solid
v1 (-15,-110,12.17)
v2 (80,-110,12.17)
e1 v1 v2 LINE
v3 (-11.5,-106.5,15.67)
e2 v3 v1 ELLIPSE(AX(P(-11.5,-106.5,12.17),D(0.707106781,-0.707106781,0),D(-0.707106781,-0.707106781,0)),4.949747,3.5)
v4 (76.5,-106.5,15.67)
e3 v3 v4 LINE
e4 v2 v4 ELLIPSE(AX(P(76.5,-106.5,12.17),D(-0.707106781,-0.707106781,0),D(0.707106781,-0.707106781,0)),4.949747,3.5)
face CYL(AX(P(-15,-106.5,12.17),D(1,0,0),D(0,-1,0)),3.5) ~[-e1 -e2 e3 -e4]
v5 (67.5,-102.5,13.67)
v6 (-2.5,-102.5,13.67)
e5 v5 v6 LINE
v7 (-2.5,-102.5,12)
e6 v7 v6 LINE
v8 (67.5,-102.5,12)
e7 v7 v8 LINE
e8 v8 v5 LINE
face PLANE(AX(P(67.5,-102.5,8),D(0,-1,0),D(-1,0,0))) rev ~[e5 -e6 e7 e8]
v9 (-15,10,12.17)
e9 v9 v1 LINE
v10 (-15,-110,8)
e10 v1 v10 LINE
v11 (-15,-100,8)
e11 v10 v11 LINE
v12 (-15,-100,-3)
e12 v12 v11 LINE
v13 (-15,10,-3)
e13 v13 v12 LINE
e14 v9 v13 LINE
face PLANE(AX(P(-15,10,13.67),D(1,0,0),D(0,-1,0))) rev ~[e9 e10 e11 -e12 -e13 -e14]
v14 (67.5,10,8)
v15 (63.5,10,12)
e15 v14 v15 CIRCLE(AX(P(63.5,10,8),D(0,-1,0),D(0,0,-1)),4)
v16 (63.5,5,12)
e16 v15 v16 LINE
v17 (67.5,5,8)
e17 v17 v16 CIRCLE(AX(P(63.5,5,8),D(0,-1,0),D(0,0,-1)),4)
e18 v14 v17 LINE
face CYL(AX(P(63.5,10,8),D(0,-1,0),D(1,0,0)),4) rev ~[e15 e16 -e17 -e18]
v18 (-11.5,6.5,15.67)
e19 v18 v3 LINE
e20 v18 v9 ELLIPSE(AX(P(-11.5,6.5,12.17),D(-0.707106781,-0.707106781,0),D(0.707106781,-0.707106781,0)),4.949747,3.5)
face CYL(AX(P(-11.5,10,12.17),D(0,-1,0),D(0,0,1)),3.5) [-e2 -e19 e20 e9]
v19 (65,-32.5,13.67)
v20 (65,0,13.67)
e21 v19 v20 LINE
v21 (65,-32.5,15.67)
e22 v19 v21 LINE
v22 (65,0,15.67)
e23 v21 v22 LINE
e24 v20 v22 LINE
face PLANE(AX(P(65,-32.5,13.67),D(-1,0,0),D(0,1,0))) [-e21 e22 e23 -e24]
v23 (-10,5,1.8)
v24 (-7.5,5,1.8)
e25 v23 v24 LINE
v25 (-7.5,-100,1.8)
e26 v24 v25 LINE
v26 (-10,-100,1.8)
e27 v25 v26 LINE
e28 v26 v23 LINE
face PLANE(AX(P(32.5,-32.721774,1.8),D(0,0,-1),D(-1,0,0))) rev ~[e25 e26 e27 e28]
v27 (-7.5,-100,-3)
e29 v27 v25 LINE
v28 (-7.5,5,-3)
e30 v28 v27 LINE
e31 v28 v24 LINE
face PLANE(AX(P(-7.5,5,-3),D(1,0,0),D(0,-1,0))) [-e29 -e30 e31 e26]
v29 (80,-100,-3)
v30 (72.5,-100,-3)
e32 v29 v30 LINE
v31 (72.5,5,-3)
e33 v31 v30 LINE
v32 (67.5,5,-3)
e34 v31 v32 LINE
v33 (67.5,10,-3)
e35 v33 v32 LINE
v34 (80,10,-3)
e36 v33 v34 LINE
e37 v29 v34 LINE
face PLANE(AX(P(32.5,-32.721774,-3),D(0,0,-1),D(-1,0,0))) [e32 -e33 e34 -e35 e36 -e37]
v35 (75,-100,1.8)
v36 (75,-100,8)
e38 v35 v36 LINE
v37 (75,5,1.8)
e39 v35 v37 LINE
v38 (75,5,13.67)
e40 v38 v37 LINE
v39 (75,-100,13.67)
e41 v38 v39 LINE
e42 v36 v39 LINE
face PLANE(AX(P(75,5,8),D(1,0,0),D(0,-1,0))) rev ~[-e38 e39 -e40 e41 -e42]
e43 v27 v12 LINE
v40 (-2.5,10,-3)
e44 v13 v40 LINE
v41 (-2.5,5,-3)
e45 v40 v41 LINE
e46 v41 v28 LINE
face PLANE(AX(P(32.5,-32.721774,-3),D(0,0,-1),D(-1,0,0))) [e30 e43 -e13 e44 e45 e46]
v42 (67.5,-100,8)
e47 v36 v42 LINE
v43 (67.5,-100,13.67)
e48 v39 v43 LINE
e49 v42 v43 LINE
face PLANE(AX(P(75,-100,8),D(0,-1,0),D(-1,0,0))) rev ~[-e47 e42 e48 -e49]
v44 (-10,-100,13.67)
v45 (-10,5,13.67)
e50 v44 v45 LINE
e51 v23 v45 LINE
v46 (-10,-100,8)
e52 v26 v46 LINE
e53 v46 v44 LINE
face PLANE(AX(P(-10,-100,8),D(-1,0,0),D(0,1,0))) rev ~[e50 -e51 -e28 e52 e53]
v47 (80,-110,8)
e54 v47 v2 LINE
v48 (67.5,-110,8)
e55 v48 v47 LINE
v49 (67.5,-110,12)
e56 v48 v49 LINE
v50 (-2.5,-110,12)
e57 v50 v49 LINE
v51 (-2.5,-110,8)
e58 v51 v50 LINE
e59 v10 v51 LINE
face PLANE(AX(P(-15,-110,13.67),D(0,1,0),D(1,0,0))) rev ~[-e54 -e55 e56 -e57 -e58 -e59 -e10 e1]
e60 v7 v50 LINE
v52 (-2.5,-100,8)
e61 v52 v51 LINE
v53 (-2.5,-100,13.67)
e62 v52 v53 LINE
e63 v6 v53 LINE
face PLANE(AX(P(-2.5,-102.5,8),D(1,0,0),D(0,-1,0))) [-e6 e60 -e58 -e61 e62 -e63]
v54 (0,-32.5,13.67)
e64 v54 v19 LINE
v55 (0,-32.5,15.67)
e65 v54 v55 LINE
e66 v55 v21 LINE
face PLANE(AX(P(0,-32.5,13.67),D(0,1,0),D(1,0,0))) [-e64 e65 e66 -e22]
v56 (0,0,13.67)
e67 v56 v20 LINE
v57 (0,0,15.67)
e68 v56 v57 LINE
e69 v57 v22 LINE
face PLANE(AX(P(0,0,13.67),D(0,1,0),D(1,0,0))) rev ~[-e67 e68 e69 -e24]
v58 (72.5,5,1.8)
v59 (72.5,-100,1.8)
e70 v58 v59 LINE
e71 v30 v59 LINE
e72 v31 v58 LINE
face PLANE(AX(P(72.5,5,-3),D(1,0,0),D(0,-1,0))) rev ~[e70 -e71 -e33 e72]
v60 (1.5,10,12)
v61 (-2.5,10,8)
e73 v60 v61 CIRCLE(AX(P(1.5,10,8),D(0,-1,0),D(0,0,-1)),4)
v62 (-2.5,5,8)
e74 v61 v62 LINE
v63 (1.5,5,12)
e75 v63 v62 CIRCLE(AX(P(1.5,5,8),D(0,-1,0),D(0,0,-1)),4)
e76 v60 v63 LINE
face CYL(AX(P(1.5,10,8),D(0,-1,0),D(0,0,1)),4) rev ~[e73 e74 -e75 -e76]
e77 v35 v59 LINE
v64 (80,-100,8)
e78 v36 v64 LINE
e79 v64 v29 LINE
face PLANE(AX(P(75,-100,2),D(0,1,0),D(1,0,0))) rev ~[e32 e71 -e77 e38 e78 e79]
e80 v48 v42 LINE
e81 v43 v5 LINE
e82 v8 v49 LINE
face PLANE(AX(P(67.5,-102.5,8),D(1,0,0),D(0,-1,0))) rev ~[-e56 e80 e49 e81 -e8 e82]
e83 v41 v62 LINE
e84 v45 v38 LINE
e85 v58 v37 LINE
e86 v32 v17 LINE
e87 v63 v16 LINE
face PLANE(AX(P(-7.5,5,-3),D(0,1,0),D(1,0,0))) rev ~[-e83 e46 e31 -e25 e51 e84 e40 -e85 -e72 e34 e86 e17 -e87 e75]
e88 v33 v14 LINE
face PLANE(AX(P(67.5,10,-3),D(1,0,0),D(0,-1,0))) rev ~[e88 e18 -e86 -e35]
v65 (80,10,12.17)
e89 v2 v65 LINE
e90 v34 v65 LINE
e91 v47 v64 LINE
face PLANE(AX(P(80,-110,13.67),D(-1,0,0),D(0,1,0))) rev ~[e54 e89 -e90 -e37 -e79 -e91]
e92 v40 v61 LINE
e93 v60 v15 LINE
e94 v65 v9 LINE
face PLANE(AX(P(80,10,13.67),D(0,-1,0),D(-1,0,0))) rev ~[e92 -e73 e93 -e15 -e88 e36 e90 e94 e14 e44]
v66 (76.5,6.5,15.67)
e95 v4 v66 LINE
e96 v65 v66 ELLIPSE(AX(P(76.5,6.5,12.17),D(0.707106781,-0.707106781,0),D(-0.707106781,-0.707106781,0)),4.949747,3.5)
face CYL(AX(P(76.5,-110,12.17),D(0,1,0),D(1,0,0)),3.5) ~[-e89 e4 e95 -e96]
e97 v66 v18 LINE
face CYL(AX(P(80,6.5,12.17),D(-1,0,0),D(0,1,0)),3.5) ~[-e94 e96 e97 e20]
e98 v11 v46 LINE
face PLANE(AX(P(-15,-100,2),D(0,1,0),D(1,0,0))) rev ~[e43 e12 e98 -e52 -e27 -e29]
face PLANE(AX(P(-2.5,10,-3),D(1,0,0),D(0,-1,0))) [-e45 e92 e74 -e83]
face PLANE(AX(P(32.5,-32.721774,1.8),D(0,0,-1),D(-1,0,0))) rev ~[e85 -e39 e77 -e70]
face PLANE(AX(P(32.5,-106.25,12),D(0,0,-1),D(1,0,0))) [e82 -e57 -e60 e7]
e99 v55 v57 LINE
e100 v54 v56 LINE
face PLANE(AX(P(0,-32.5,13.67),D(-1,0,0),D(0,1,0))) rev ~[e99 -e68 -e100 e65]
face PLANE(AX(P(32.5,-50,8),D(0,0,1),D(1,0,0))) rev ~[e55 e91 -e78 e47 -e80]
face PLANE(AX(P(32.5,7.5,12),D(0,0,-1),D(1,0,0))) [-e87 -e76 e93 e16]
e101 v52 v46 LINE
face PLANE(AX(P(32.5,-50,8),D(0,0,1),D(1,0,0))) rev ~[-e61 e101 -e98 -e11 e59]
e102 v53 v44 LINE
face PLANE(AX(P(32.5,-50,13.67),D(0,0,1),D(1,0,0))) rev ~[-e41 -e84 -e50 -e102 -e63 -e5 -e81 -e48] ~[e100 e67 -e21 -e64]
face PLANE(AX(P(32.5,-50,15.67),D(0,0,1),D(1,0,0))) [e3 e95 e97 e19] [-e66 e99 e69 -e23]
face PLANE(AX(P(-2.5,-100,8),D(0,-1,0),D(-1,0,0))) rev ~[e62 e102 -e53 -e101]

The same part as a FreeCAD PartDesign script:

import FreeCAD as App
import Part
import Sketcher
Q = App.Units.Quantity


def edges_at(feature, points):
    """Names of the edges that pass closest to the given points."""
    edges = feature.Shape.Edges
    near = lambda p: min(range(len(edges)), key=lambda i: edges[i].distToShape(Part.Vertex(*p))[0])
    return sorted({f"Edge{near(p) + 1}" for p in points})


def add_polygon(sketch, points):
    """Adds a closed chain of lines whose ends are joined by coincident constraints."""
    first, n = sketch.GeometryCount, len(points)
    for a, b in zip(points, points[1:] + points[:1]):
        sketch.addGeometry(Part.LineSegment(App.Vector(*a, 0), App.Vector(*b, 0)), False)
    for i in range(n):
        sketch.addConstraint(Sketcher.Constraint("Coincident", first + i, 2, first + (i + 1) % n, 1))

doc = App.newDocument("Part")
body = doc.addObject("PartDesign::Body", "Body")

sketch1 = body.newObject("Sketcher::SketchObject", "Sketch")
sketch1.AttachmentSupport = (doc.getObject("XY_Plane"), [""])
sketch1.MapMode = "FlatFace"
add_polygon(sketch1, [(95, 0), (0, 0), (0, -110), (9, -110), (9, -5), (86, -5), (86, -110), (95, -110)])
sketch1.addConstraint([
    Sketcher.Constraint("Horizontal", 0),
    Sketcher.Constraint("Vertical", 1),
    Sketcher.Constraint("Horizontal", 2),
    Sketcher.Constraint("Vertical", 3),
    Sketcher.Constraint("Horizontal", 4),
    Sketcher.Constraint("Vertical", 5),
    Sketcher.Constraint("Horizontal", 6),
    Sketcher.Constraint("Vertical", 7),
    Sketcher.Constraint("Coincident", 0, 2, -1, 1),
    Sketcher.Constraint("Horizontal", 2, 2, 5, 2),
    Sketcher.Constraint("Equal", 2, 6),
    Sketcher.Constraint("DistanceX", 0, 2, 0, 1, Q("95 mm")),
    Sketcher.Constraint("DistanceY", 1, 2, 1, 1, Q("110 mm")),
    Sketcher.Constraint("DistanceY", 3, 1, 3, 2, Q("105 mm")),
    Sketcher.Constraint("DistanceX", 4, 1, 4, 2, Q("77.5 mm")),
])
pad1 = body.newObject("PartDesign::Pad", "Pad")
pad1.Profile = sketch1
pad1.Length = 4.8

sketch2 = body.newObject("Sketcher::SketchObject", "Sketch001")
sketch2.AttachmentSupport = (doc.getObject("XY_Plane"), [""])
sketch2.MapMode = "FlatFace"
sketch2.AttachmentOffset = App.Placement(App.Vector(0, 0, 4.8), App.Rotation())
add_polygon(sketch2, [(0, 0), (0, -110), (5, -110), (5, -5), (90, -5), (90, -110), (95, -110), (95, 0)])
sketch2.addConstraint([
    Sketcher.Constraint("Vertical", 0),
    Sketcher.Constraint("Horizontal", 1),
    Sketcher.Constraint("Vertical", 2),
    Sketcher.Constraint("Horizontal", 3),
    Sketcher.Constraint("Vertical", 4),
    Sketcher.Constraint("Horizontal", 5),
    Sketcher.Constraint("Vertical", 6),
    Sketcher.Constraint("Horizontal", 7),
    Sketcher.Constraint("Coincident", 7, 2, -1, 1),
    Sketcher.Constraint("Horizontal", 1, 2, 4, 2),
    Sketcher.Constraint("Equal", 1, 5),
    Sketcher.Constraint("DistanceX", 1, 1, 1, 2, Q("5 mm")),
    Sketcher.Constraint("DistanceX", 3, 1, 3, 2, Q("85 mm")),
    Sketcher.Constraint("DistanceY", 0, 2, 0, 1, Q("110 mm")),
    Sketcher.Constraint("DistanceY", 2, 1, 2, 2, Q("105 mm")),
])
pad2 = body.newObject("PartDesign::Pad", "Pad001")
pad2.Profile = sketch2
pad2.Length = 0.2

sketch3 = body.newObject("Sketcher::SketchObject", "Sketch002")
sketch3.AttachmentSupport = (doc.getObject("XY_Plane"), [""])
sketch3.MapMode = "FlatFace"
sketch3.AttachmentOffset = App.Placement(App.Vector(0, 0, 5), App.Rotation())
add_polygon(sketch3, [(0, 0), (0, -110), (5, -110), (5, -5), (90, -5), (90, -110), (95, -110), (95, 0)])
sketch3.addConstraint([
    Sketcher.Constraint("Vertical", 0),
    Sketcher.Constraint("Horizontal", 1),
    Sketcher.Constraint("Vertical", 2),
    Sketcher.Constraint("Horizontal", 3),
    Sketcher.Constraint("Vertical", 4),
    Sketcher.Constraint("Horizontal", 5),
    Sketcher.Constraint("Vertical", 6),
    Sketcher.Constraint("Horizontal", 7),
    Sketcher.Constraint("Coincident", 7, 2, -1, 1),
    Sketcher.Constraint("Horizontal", 1, 2, 4, 2),
    Sketcher.Constraint("Equal", 1, 5),
    Sketcher.Constraint("DistanceX", 1, 1, 1, 2, Q("5 mm")),
    Sketcher.Constraint("DistanceX", 3, 1, 3, 2, Q("85 mm")),
    Sketcher.Constraint("DistanceY", 0, 2, 0, 1, Q("110 mm")),
    Sketcher.Constraint("DistanceY", 2, 1, 2, 2, Q("105 mm")),
])
pad3 = body.newObject("PartDesign::Pad", "Pad002")
pad3.Profile = sketch3
pad3.Length = 6

sketch4 = body.newObject("Sketcher::SketchObject", "Sketch003")
sketch4.AttachmentSupport = (doc.getObject("XY_Plane"), [""])
sketch4.MapMode = "FlatFace"
sketch4.AttachmentOffset = App.Placement(App.Vector(0, 0, 11), App.Rotation())
add_polygon(sketch4, [(0, 0), (0, -120), (95, -120), (95, 0)])
add_polygon(sketch4, [(5, -110), (5, -5), (90, -5), (90, -110), (82.5, -110), (82.5, -112.5), (12.5, -112.5), (12.5, -110)])
sketch4.addConstraint([
    Sketcher.Constraint("Vertical", 0),
    Sketcher.Constraint("Horizontal", 1),
    Sketcher.Constraint("Vertical", 2),
    Sketcher.Constraint("Horizontal", 3),
    Sketcher.Constraint("Vertical", 4),
    Sketcher.Constraint("Horizontal", 5),
    Sketcher.Constraint("Vertical", 6),
    Sketcher.Constraint("Horizontal", 7),
    Sketcher.Constraint("Vertical", 8),
    Sketcher.Constraint("Horizontal", 9),
    Sketcher.Constraint("Vertical", 10),
    Sketcher.Constraint("Horizontal", 11),
    Sketcher.Constraint("Coincident", 3, 2, -1, 1),
    Sketcher.Constraint("Horizontal", 7, 2, 10, 2),
    Sketcher.Constraint("Equal", 7, 11),
    Sketcher.Constraint("DistanceX", 1, 1, 1, 2, Q("95 mm")),
    Sketcher.Constraint("DistanceX", 5, 1, 5, 2, Q("85 mm")),
    Sketcher.Constraint("DistanceX", 9, 2, 9, 1, Q("70 mm")),
    Sketcher.Constraint("DistanceY", 0, 2, 0, 1, Q("120 mm")),
    Sketcher.Constraint("DistanceY", 4, 1, 4, 2, Q("105 mm")),
    Sketcher.Constraint("DistanceY", 8, 2, 8, 1, Q("2.5 mm")),
    Sketcher.Constraint("DistanceX", -1, 1, 4, 2, Q("5 mm")),
    Sketcher.Constraint("DistanceY", 4, 2, -1, 1, Q("5 mm")),
])
pad4 = body.newObject("PartDesign::Pad", "Pad003")
pad4.Profile = sketch4
pad4.Length = 5.67

sketch5 = body.newObject("Sketcher::SketchObject", "Sketch004")
sketch5.AttachmentSupport = (doc.getObject("XY_Plane"), [""])
sketch5.MapMode = "FlatFace"
sketch5.AttachmentOffset = App.Placement(App.Vector(0, 0, 16.67), App.Rotation())
add_polygon(sketch5, [(0, -120), (95, -120), (95, 0), (0, 0)])
add_polygon(sketch5, [(80, -42), (15, -42), (15, -10), (80, -10)])
sketch5.addConstraint([
    Sketcher.Constraint("Horizontal", 0),
    Sketcher.Constraint("Vertical", 1),
    Sketcher.Constraint("Horizontal", 2),
    Sketcher.Constraint("Vertical", 3),
    Sketcher.Constraint("Horizontal", 4),
    Sketcher.Constraint("Vertical", 5),
    Sketcher.Constraint("Horizontal", 6),
    Sketcher.Constraint("Vertical", 7),
    Sketcher.Constraint("Coincident", 2, 2, -1, 1),
    Sketcher.Constraint("DistanceX", 0, 1, 0, 2, Q("95 mm")),
    Sketcher.Constraint("DistanceX", 4, 2, 4, 1, Q("65 mm")),
    Sketcher.Constraint("DistanceY", 1, 1, 1, 2, Q("120 mm")),
    Sketcher.Constraint("DistanceY", 5, 1, 5, 2, Q("32.5 mm")),
    Sketcher.Constraint("DistanceX", -1, 1, 4, 2, Q("15 mm")),
    Sketcher.Constraint("DistanceY", 5, 2, -1, 1, Q("10 mm")),
])
pad5 = body.newObject("PartDesign::Pad", "Pad004")
pad5.Profile = sketch5
pad5.Length = 2
doc.recompute()

fillet = body.newObject("PartDesign::Fillet", "Fillet")
fillet.Base = (pad5, edges_at(pad5, [
    (0, -60, 18.67),
    (47.5, -120, 18.67),
    (47.5, 0, 18.67),
    (95, -60, 18.67),
]))
fillet.Radius = 3.5

sketch6 = body.newObject("Sketcher::SketchObject", "Sketch005")
sketch6.AttachmentSupport = (doc.getObject("XY_Plane"), [""])
sketch6.MapMode = "FlatFace"
add_polygon(sketch6, [(7.5, -110), (7.5, -5), (8.8, -5), (8.8, -110)])
add_polygon(sketch6, [(86.2, -110), (86.2, -5), (87.5, -5), (87.5, -110)])
sketch6.addConstraint([
    Sketcher.Constraint("Vertical", 0),
    Sketcher.Constraint("Horizontal", 1),
    Sketcher.Constraint("Vertical", 2),
    Sketcher.Constraint("Horizontal", 3),
    Sketcher.Constraint("Vertical", 4),
    Sketcher.Constraint("Horizontal", 5),
    Sketcher.Constraint("Vertical", 6),
    Sketcher.Constraint("Horizontal", 7),
    Sketcher.Constraint("Horizontal", 1, 2, 4, 2),
    Sketcher.Constraint("Horizontal", 3, 2, 6, 2),
    Sketcher.Constraint("Equal", 3, 5),
    Sketcher.Constraint("DistanceY", 0, 1, 0, 2, Q("105 mm")),
    Sketcher.Constraint("DistanceY", 0, 2, -1, 1, Q("5 mm")),
    Sketcher.Constraint("DistanceX", 0, 2, 5, 2, Q("80 mm")),
    Sketcher.Constraint("DistanceX", 1, 1, 1, 2, Q("1.25 mm")),
    Sketcher.Constraint("DistanceX", -1, 1, 0, 2, Q("7.5 mm")),
])
pocket1 = body.newObject("PartDesign::Pocket", "Pocket")
pocket1.Profile = sketch6
pocket1.Length = 5
pocket1.Reversed = True

sketch7 = body.newObject("Sketcher::SketchObject", "Sketch006")
sketch7.AttachmentSupport = (doc.getObject("XY_Plane"), [""])
sketch7.MapMode = "FlatFace"
add_polygon(sketch7, [(12, -5), (12, 0), (82, 0), (82, -5)])
sketch7.addConstraint([
    Sketcher.Constraint("Vertical", 0),
    Sketcher.Constraint("Horizontal", 1),
    Sketcher.Constraint("Vertical", 2),
    Sketcher.Constraint("Horizontal", 3),
    Sketcher.Constraint("PointOnObject", 0, 2, -1),
    Sketcher.Constraint("DistanceX", 1, 1, 1, 2, Q("70 mm")),
    Sketcher.Constraint("DistanceY", 0, 1, 0, 2, Q("5 mm")),
    Sketcher.Constraint("DistanceX", -1, 1, 0, 2, Q("12.5 mm")),
])
pocket2 = body.newObject("PartDesign::Pocket", "Pocket001")
pocket2.Profile = sketch7
pocket2.Length = 15
pocket2.Reversed = True
doc.recompute()

fillet2 = body.newObject("PartDesign::Fillet", "Fillet001")
fillet2.Base = (pocket2, edges_at(pocket2, [(12.5, -2.5, 15), (82.5, -2.5, 15)]))
fillet2.Radius = 4

sketch8 = body.newObject("Sketcher::SketchObject", "Sketch007")
sketch8.AttachmentSupport = (doc.getObject("XY_Plane"), [""])
sketch8.MapMode = "FlatFace"
sketch8.AttachmentOffset = App.Placement(App.Vector(0, 0, 11), App.Rotation())
add_polygon(sketch8, [(12, -120), (12, -112), (82, -112), (82, -120)])
sketch8.addConstraint([
    Sketcher.Constraint("Vertical", 0),
    Sketcher.Constraint("Horizontal", 1),
    Sketcher.Constraint("Vertical", 2),
    Sketcher.Constraint("Horizontal", 3),
    Sketcher.Constraint("DistanceX", 1, 1, 1, 2, Q("70 mm")),
    Sketcher.Constraint("DistanceY", 0, 1, 0, 2, Q("7.5 mm")),
    Sketcher.Constraint("DistanceY", 2, 2, -1, 1, Q("120 mm")),
    Sketcher.Constraint("DistanceX", -1, 1, 0, 2, Q("12.5 mm")),
])
pocket3 = body.newObject("PartDesign::Pocket", "Pocket002")
pocket3.Profile = sketch8
pocket3.Length = 4
pocket3.Reversed = True
body2 = doc.addObject("PartDesign::Body", "Body001")
doc.recompute()

body.Placement = App.Placement(App.Vector(-15, 10, -3), App.Rotation(App.Vector(0, 0, 1), 0))
boolean = body2.newObject("PartDesign::Boolean", "Boolean")
boolean.Type = "Fuse"
boolean.addObjects([body])

doc.recompute()
